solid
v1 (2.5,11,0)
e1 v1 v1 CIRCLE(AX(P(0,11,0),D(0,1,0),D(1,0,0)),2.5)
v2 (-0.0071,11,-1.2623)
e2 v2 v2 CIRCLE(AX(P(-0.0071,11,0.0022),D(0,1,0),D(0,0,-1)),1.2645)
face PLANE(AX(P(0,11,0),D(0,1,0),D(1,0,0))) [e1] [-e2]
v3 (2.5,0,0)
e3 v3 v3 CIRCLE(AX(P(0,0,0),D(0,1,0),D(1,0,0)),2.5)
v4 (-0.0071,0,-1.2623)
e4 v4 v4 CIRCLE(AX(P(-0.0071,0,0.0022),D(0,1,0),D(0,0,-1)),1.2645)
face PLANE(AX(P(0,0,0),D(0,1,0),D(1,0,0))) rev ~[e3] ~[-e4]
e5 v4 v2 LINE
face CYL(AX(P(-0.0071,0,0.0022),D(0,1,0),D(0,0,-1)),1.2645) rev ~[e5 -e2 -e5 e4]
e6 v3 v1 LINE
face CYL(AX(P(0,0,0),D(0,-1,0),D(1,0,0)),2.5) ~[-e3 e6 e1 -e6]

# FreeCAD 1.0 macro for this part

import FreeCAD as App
import Part
import Sketcher

doc = App.newDocument("Part")
body = doc.addObject("PartDesign::Body", "Body")

sketch1 = doc.addObject("Sketcher::SketchObject", "Sketch")
body.addObject(sketch1)
sketch1.AttachmentSupport = (doc.XZ_Plane, [""])
sketch1.MapMode = "FlatFace"
sketch1.addGeometry(Part.Circle(App.Vector(0, 0, 0), App.Vector(0, 0, 1), 2.5), False)
sketch1.addConstraint([
    Sketcher.Constraint("Coincident", 0, 3, -1, 1),
    Sketcher.Constraint("Diameter", 0, 5.0),
])
pad1 = doc.addObject("PartDesign::Pad", "Pad")
body.addObject(pad1)
pad1.Profile = sketch1
pad1.Length = 11
pad1.Reversed = True

sketch2 = doc.addObject("Sketcher::SketchObject", "Sketch001")
body.addObject(sketch2)
sketch2.AttachmentSupport = (doc.XZ_Plane, [""])
sketch2.MapMode = "FlatFace"
sketch2.addGeometry(Part.Circle(App.Vector(0, 0, 0), App.Vector(0, 0, 1), 1.3), False)
sketch2.addConstraint([
    Sketcher.Constraint("Diameter", 0, 2.529),
    Sketcher.Constraint("DistanceX", 0, 3, -1, 1, 0.007),
    Sketcher.Constraint("DistanceY", -1, 1, 0, 3, 0.0022),
])
doc.recompute()
hole = doc.addObject("PartDesign::Hole", "Hole")
body.addObject(hole)
hole.Profile = sketch2
hole.ThreadType = "None"
hole.Diameter = 2.529
hole.DepthType = "ThroughAll"

doc.recompute()
